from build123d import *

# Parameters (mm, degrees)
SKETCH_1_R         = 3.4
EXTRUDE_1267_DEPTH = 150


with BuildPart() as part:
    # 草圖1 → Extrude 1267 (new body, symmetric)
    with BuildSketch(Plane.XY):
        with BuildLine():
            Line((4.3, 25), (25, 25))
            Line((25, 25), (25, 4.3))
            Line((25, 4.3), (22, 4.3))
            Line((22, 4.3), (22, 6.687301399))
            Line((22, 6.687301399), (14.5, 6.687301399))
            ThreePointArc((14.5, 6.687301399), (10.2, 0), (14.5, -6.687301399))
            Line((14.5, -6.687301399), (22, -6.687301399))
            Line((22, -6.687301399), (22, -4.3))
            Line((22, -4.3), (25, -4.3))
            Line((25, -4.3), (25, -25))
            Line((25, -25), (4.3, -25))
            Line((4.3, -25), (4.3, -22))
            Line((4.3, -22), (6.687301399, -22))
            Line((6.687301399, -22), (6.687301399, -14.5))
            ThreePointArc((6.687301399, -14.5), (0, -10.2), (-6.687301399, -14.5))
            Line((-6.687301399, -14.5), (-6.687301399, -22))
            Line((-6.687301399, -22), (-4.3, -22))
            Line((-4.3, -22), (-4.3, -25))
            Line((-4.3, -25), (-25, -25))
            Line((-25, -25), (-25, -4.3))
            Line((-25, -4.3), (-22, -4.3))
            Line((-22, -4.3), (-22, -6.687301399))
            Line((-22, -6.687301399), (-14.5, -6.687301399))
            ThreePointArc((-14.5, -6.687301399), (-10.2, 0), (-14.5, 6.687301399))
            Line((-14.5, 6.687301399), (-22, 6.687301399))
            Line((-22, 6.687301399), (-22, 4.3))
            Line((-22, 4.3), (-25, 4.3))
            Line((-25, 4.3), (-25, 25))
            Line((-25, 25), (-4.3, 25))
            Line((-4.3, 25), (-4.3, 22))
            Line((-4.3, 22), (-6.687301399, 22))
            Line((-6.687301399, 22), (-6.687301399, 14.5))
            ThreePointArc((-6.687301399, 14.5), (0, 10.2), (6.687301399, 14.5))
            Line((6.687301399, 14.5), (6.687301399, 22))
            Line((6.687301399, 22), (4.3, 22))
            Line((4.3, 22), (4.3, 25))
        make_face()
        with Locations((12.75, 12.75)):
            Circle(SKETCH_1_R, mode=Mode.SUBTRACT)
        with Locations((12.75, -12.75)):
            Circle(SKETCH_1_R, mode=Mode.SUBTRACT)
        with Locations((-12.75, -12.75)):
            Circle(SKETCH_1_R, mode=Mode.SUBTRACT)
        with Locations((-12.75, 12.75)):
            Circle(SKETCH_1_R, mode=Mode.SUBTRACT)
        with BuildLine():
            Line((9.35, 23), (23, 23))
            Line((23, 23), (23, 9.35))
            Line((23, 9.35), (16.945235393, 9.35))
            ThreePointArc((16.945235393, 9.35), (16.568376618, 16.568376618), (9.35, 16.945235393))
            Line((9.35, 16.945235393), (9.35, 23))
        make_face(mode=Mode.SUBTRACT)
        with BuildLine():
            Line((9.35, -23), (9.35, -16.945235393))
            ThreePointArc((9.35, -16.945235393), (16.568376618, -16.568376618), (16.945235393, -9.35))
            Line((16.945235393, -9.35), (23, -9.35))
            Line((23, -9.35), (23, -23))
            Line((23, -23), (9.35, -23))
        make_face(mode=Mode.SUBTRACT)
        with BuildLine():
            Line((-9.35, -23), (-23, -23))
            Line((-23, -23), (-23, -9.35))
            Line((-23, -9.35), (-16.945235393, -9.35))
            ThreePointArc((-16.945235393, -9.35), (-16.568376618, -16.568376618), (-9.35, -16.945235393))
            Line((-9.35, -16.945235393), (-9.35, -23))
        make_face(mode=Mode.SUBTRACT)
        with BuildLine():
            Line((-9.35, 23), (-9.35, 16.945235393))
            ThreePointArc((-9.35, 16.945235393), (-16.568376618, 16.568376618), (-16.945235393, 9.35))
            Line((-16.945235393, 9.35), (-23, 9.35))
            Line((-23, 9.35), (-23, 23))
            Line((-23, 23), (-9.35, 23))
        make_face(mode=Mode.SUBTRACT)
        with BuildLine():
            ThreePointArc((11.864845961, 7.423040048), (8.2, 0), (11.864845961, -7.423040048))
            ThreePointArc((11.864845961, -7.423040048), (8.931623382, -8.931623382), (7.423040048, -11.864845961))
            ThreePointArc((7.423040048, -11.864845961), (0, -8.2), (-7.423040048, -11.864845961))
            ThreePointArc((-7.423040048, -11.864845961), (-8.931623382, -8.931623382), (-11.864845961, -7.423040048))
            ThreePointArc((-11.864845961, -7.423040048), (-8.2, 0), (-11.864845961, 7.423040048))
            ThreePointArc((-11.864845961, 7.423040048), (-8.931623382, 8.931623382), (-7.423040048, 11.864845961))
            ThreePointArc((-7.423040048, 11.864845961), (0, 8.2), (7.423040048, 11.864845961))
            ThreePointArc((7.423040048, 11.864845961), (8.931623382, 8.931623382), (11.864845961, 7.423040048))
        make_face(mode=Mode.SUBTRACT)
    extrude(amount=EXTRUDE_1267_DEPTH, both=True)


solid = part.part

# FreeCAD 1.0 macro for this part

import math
import FreeCAD as App
import Part
import Sketcher

V = App.Vector
Q = App.Units.Quantity

doc = App.newDocument("Part")
body = doc.addObject("PartDesign::Body", "Body")

# Sketch on XY plane
sketch1 = body.newObject("Sketcher::SketchObject", "Sketch")
sketch1.AttachmentSupport = (doc.getObject("XY_Plane"), [""])
sketch1.MapMode = "FlatFace"
sketch1.addGeometry(Part.LineSegment(V(25, 25, 0), V(4.3, 25, 0)), False)
sketch1.addGeometry(Part.LineSegment(V(4.3, 25, 0), V(4.3, 22, 0)), False)
sketch1.addGeometry(Part.LineSegment(V(4.3, 22, 0), V(6.7, 22, 0)), False)
sketch1.addGeometry(Part.LineSegment(V(6.7, 22, 0), V(6.7, 14.5, 0)), False)
sketch1.addGeometry(Part.ArcOfCircle(Part.Circle(V(0, 17.6, 0), V(0, 0, 1), 7.3), math.radians(-155), math.radians(-25)), False)
sketch1.addGeometry(Part.LineSegment(V(-6.7, 14.5, 0), V(-6.7, 22, 0)), False)
sketch1.addGeometry(Part.LineSegment(V(-6.7, 22, 0), V(-4.3, 22, 0)), False)
sketch1.addGeometry(Part.LineSegment(V(-4.3, 22, 0), V(-4.3, 25, 0)), False)
sketch1.addGeometry(Part.LineSegment(V(-4.3, 25, 0), V(-25, 25, 0)), False)
sketch1.addGeometry(Part.LineSegment(V(-25, 25, 0), V(-25, 4.3, 0)), False)
sketch1.addGeometry(Part.LineSegment(V(-25, 4.3, 0), V(-22, 4.3, 0)), False)
sketch1.addGeometry(Part.LineSegment(V(-22, 4.3, 0), V(-22, 6.7, 0)), False)
sketch1.addGeometry(Part.LineSegment(V(-22, 6.7, 0), V(-14.5, 6.7, 0)), False)
sketch1.addGeometry(Part.ArcOfCircle(Part.Circle(V(-17.6, 0, 0), V(0, 0, 1), 7.3), math.radians(-65), math.radians(65)), False)
sketch1.addGeometry(Part.LineSegment(V(-14.5, -6.7, 0), V(-22, -6.7, 0)), False)
sketch1.addGeometry(Part.LineSegment(V(-22, -6.7, 0), V(-22, -4.3, 0)), False)
sketch1.addGeometry(Part.LineSegment(V(-22, -4.3, 0), V(-25, -4.3, 0)), False)
sketch1.addGeometry(Part.LineSegment(V(-25, -4.3, 0), V(-25, -25, 0)), False)
sketch1.addGeometry(Part.LineSegment(V(-25, -25, 0), V(-4.3, -25, 0)), False)
sketch1.addGeometry(Part.LineSegment(V(-4.3, -25, 0), V(-4.3, -22, 0)), False)
sketch1.addGeometry(Part.LineSegment(V(-4.3, -22, 0), V(-6.7, -22, 0)), False)
sketch1.addGeometry(Part.LineSegment(V(-6.7, -22, 0), V(-6.7, -14.5, 0)), False)
sketch1.addGeometry(Part.ArcOfCircle(Part.Circle(V(0, -17.6, 0), V(0, 0, 1), 7.3), math.radians(25), math.radians(155)), False)
sketch1.addGeometry(Part.LineSegment(V(6.7, -14.5, 0), V(6.7, -22, 0)), False)
sketch1.addGeometry(Part.LineSegment(V(6.7, -22, 0), V(4.3, -22, 0)), False)
sketch1.addGeometry(Part.LineSegment(V(4.3, -22, 0), V(4.3, -25, 0)), False)
sketch1.addGeometry(Part.LineSegment(V(4.3, -25, 0), V(25, -25, 0)), False)
sketch1.addGeometry(Part.LineSegment(V(25, -25, 0), V(25, -4.3, 0)), False)
sketch1.addGeometry(Part.LineSegment(V(25, -4.3, 0), V(22, -4.3, 0)), False)
sketch1.addGeometry(Part.LineSegment(V(22, -4.3, 0), V(22, -6.7, 0)), False)
sketch1.addGeometry(Part.LineSegment(V(22, -6.7, 0), V(14.5, -6.7, 0)), False)
sketch1.addGeometry(Part.ArcOfCircle(Part.Circle(V(17.6, 0, 0), V(0, 0, 1), 7.3), math.radians(115), math.radians(245)), False)
sketch1.addGeometry(Part.LineSegment(V(14.5, 6.7, 0), V(22, 6.7, 0)), False)
sketch1.addGeometry(Part.LineSegment(V(22, 6.7, 0), V(22, 4.3, 0)), False)
sketch1.addGeometry(Part.LineSegment(V(22, 4.3, 0), V(25, 4.3, 0)), False)
sketch1.addGeometry(Part.LineSegment(V(25, 4.3, 0), V(25, 25, 0)), False)
sketch1.addGeometry(Part.LineSegment(V(9.3, -23, 0), V(9.3, -16.9, 0)), False)
sketch1.addGeometry(Part.ArcOfCircle(Part.Circle(V(12.7, -12.7, 0), V(0, 0, 1), 5.4), math.radians(-129), math.radians(39)), False)
sketch1.addGeometry(Part.LineSegment(V(16.9, -9.3, 0), V(23, -9.3, 0)), False)
sketch1.addGeometry(Part.LineSegment(V(23, -9.3, 0), V(23, -23, 0)), False)
sketch1.addGeometry(Part.LineSegment(V(23, -23, 0), V(9.3, -23, 0)), False)
sketch1.addGeometry(Part.Circle(V(12.8, -12.8, 0), V(0, 0, 1), 3.4), False)
sketch1.addGeometry(Part.LineSegment(V(-9.3, -23, 0), V(-23, -23, 0)), False)
sketch1.addGeometry(Part.LineSegment(V(-23, -23, 0), V(-23, -9.3, 0)), False)
sketch1.addGeometry(Part.LineSegment(V(-23, -9.3, 0), V(-16.9, -9.3, 0)), False)
sketch1.addGeometry(Part.ArcOfCircle(Part.Circle(V(-12.7, -12.7, 0), V(0, 0, 1), 5.4), math.radians(141), math.radians(309)), False)
sketch1.addGeometry(Part.LineSegment(V(-9.3, -16.9, 0), V(-9.3, -23, 0)), False)
sketch1.addGeometry(Part.Circle(V(-12.8, -12.8, 0), V(0, 0, 1), 3.4), False)
sketch1.addGeometry(Part.Circle(V(12.8, 12.8, 0), V(0, 0, 1), 3.4), False)
sketch1.addGeometry(Part.LineSegment(V(9.3, 23, 0), V(23, 23, 0)), False)
sketch1.addGeometry(Part.LineSegment(V(23, 23, 0), V(23, 9.3, 0)), False)
sketch1.addGeometry(Part.LineSegment(V(23, 9.3, 0), V(16.9, 9.3, 0)), False)
sketch1.addGeometry(Part.ArcOfCircle(Part.Circle(V(12.7, 12.7, 0), V(0, 0, 1), 5.4), math.radians(-39), math.radians(129)), False)
sketch1.addGeometry(Part.LineSegment(V(9.3, 16.9, 0), V(9.3, 23, 0)), False)
sketch1.addGeometry(Part.ArcOfCircle(Part.Circle(V(17.6, 0, 0), V(0, 0, 1), 9.3), math.radians(127), math.radians(233)), False)
sketch1.addGeometry(Part.ArcOfCircle(Part.Circle(V(12.8, -12.8, 0), V(0, 0, 1), 5.4), math.radians(99), math.radians(171)), False)
sketch1.addGeometry(Part.ArcOfCircle(Part.Circle(V(0, -17.6, 0), V(0, 0, 1), 9.3), math.radians(37), math.radians(143)), False)
sketch1.addGeometry(Part.ArcOfCircle(Part.Circle(V(-12.8, -12.8, 0), V(0, 0, 1), 5.4), math.radians(9), math.radians(81)), False)
sketch1.addGeometry(Part.ArcOfCircle(Part.Circle(V(-17.6, 0, 0), V(0, 0, 1), 9.3), math.radians(-53), math.radians(53)), False)
sketch1.addGeometry(Part.ArcOfCircle(Part.Circle(V(-12.8, 12.8, 0), V(0, 0, 1), 5.4), math.radians(-81), math.radians(-9)), False)
sketch1.addGeometry(Part.ArcOfCircle(Part.Circle(V(0, 17.6, 0), V(0, 0, 1), 9.3), math.radians(-143), math.radians(-37)), False)
sketch1.addGeometry(Part.ArcOfCircle(Part.Circle(V(12.8, 12.8, 0), V(0, 0, 1), 5.4), math.radians(-171), math.radians(-99)), False)
sketch1.addGeometry(Part.Circle(V(-12.8, 12.8, 0), V(0, 0, 1), 3.4), False)
sketch1.addGeometry(Part.LineSegment(V(-9.3, 23, 0), V(-9.3, 16.9, 0)), False)
sketch1.addGeometry(Part.ArcOfCircle(Part.Circle(V(-12.7, 12.7, 0), V(0, 0, 1), 5.4), math.radians(51), math.radians(219)), False)
sketch1.addGeometry(Part.LineSegment(V(-16.9, 9.3, 0), V(-23, 9.3, 0)), False)
sketch1.addGeometry(Part.LineSegment(V(-23, 9.3, 0), V(-23, 23, 0)), False)
sketch1.addGeometry(Part.LineSegment(V(-23, 23, 0), V(-9.3, 23, 0)), False)
sketch1.addConstraint(Sketcher.Constraint("Coincident", 0, 2, 1, 1))
sketch1.addConstraint(Sketcher.Constraint("Coincident", 1, 2, 2, 1))
sketch1.addConstraint(Sketcher.Constraint("Coincident", 2, 2, 3, 1))
sketch1.addConstraint(Sketcher.Constraint("Coincident", 3, 2, 4, 2))
sketch1.addConstraint(Sketcher.Constraint("Coincident", 4, 1, 5, 1))
sketch1.addConstraint(Sketcher.Constraint("Coincident", 5, 2, 6, 1))
sketch1.addConstraint(Sketcher.Constraint("Coincident", 6, 2, 7, 1))
sketch1.addConstraint(Sketcher.Constraint("Coincident", 7, 2, 8, 1))
sketch1.addConstraint(Sketcher.Constraint("Coincident", 8, 2, 9, 1))
sketch1.addConstraint(Sketcher.Constraint("Coincident", 9, 2, 10, 1))
sketch1.addConstraint(Sketcher.Constraint("Coincident", 10, 2, 11, 1))
sketch1.addConstraint(Sketcher.Constraint("Coincident", 11, 2, 12, 1))
sketch1.addConstraint(Sketcher.Constraint("Coincident", 12, 2, 13, 2))
sketch1.addConstraint(Sketcher.Constraint("Coincident", 13, 1, 14, 1))
sketch1.addConstraint(Sketcher.Constraint("Coincident", 14, 2, 15, 1))
sketch1.addConstraint(Sketcher.Constraint("Coincident", 15, 2, 16, 1))
sketch1.addConstraint(Sketcher.Constraint("Coincident", 16, 2, 17, 1))
sketch1.addConstraint(Sketcher.Constraint("Coincident", 17, 2, 18, 1))
sketch1.addConstraint(Sketcher.Constraint("Coincident", 18, 2, 19, 1))
sketch1.addConstraint(Sketcher.Constraint("Coincident", 19, 2, 20, 1))
sketch1.addConstraint(Sketcher.Constraint("Coincident", 20, 2, 21, 1))
sketch1.addConstraint(Sketcher.Constraint("Coincident", 21, 2, 22, 2))
sketch1.addConstraint(Sketcher.Constraint("Coincident", 22, 1, 23, 1))
sketch1.addConstraint(Sketcher.Constraint("Coincident", 23, 2, 24, 1))
sketch1.addConstraint(Sketcher.Constraint("Coincident", 24, 2, 25, 1))
sketch1.addConstraint(Sketcher.Constraint("Coincident", 25, 2, 26, 1))
sketch1.addConstraint(Sketcher.Constraint("Coincident", 26, 2, 27, 1))
sketch1.addConstraint(Sketcher.Constraint("Coincident", 27, 2, 28, 1))
sketch1.addConstraint(Sketcher.Constraint("Coincident", 28, 2, 29, 1))
sketch1.addConstraint(Sketcher.Constraint("Coincident", 29, 2, 30, 1))
sketch1.addConstraint(Sketcher.Constraint("Coincident", 30, 2, 31, 2))
sketch1.addConstraint(Sketcher.Constraint("Coincident", 31, 1, 32, 1))
sketch1.addConstraint(Sketcher.Constraint("Coincident", 32, 2, 33, 1))
sketch1.addConstraint(Sketcher.Constraint("Coincident", 33, 2, 34, 1))
sketch1.addConstraint(Sketcher.Constraint("Coincident", 34, 2, 35, 1))
sketch1.addConstraint(Sketcher.Constraint("Coincident", 35, 2, 0, 1))
sketch1.addConstraint(Sketcher.Constraint("Coincident", 36, 2, 37, 1))
sketch1.addConstraint(Sketcher.Constraint("Coincident", 37, 2, 38, 1))
sketch1.addConstraint(Sketcher.Constraint("Coincident", 38, 2, 39, 1))
sketch1.addConstraint(Sketcher.Constraint("Coincident", 39, 2, 40, 1))
sketch1.addConstraint(Sketcher.Constraint("Coincident", 40, 2, 36, 1))
sketch1.addConstraint(Sketcher.Constraint("Coincident", 42, 2, 43, 1))
sketch1.addConstraint(Sketcher.Constraint("Coincident", 43, 2, 44, 1))
sketch1.addConstraint(Sketcher.Constraint("Coincident", 44, 2, 45, 1))
sketch1.addConstraint(Sketcher.Constraint("Coincident", 45, 2, 46, 1))
sketch1.addConstraint(Sketcher.Constraint("Coincident", 46, 2, 42, 1))
sketch1.addConstraint(Sketcher.Constraint("Coincident", 49, 2, 50, 1))
sketch1.addConstraint(Sketcher.Constraint("Coincident", 50, 2, 51, 1))
sketch1.addConstraint(Sketcher.Constraint("Coincident", 51, 2, 52, 1))
sketch1.addConstraint(Sketcher.Constraint("Coincident", 52, 2, 53, 1))
sketch1.addConstraint(Sketcher.Constraint("Coincident", 53, 2, 49, 1))
sketch1.addConstraint(Sketcher.Constraint("Coincident", 54, 2, 55, 1))
sketch1.addConstraint(Sketcher.Constraint("Coincident", 55, 2, 56, 1))
sketch1.addConstraint(Sketcher.Constraint("Coincident", 56, 2, 57, 1))
sketch1.addConstraint(Sketcher.Constraint("Coincident", 57, 2, 58, 1))
sketch1.addConstraint(Sketcher.Constraint("Coincident", 58, 2, 59, 1))
sketch1.addConstraint(Sketcher.Constraint("Coincident", 59, 2, 60, 1))
sketch1.addConstraint(Sketcher.Constraint("Coincident", 60, 2, 61, 1))
sketch1.addConstraint(Sketcher.Constraint("Coincident", 61, 2, 54, 1))
sketch1.addConstraint(Sketcher.Constraint("Coincident", 63, 2, 64, 1))
sketch1.addConstraint(Sketcher.Constraint("Coincident", 64, 2, 65, 1))
sketch1.addConstraint(Sketcher.Constraint("Coincident", 65, 2, 66, 1))
sketch1.addConstraint(Sketcher.Constraint("Coincident", 66, 2, 67, 1))
sketch1.addConstraint(Sketcher.Constraint("Coincident", 67, 2, 63, 1))
sketch1.addConstraint(Sketcher.Constraint("Horizontal", 0))
sketch1.addConstraint(Sketcher.Constraint("Vertical", 1))
sketch1.addConstraint(Sketcher.Constraint("Horizontal", 2))
sketch1.addConstraint(Sketcher.Constraint("Vertical", 3))
sketch1.addConstraint(Sketcher.Constraint("Vertical", 5))
sketch1.addConstraint(Sketcher.Constraint("Horizontal", 6))
sketch1.addConstraint(Sketcher.Constraint("Vertical", 7))
sketch1.addConstraint(Sketcher.Constraint("Horizontal", 8))
sketch1.addConstraint(Sketcher.Constraint("Vertical", 9))
sketch1.addConstraint(Sketcher.Constraint("Horizontal", 10))
sketch1.addConstraint(Sketcher.Constraint("Vertical", 11))
sketch1.addConstraint(Sketcher.Constraint("Horizontal", 12))
sketch1.addConstraint(Sketcher.Constraint("Horizontal", 14))
sketch1.addConstraint(Sketcher.Constraint("Vertical", 15))
sketch1.addConstraint(Sketcher.Constraint("Horizontal", 16))
sketch1.addConstraint(Sketcher.Constraint("Vertical", 17))
sketch1.addConstraint(Sketcher.Constraint("Horizontal", 18))
sketch1.addConstraint(Sketcher.Constraint("Vertical", 19))
sketch1.addConstraint(Sketcher.Constraint("Horizontal", 20))
sketch1.addConstraint(Sketcher.Constraint("Vertical", 21))
sketch1.addConstraint(Sketcher.Constraint("Vertical", 23))
sketch1.addConstraint(Sketcher.Constraint("Horizontal", 24))
sketch1.addConstraint(Sketcher.Constraint("Vertical", 25))
sketch1.addConstraint(Sketcher.Constraint("Horizontal", 26))
sketch1.addConstraint(Sketcher.Constraint("Vertical", 27))
sketch1.addConstraint(Sketcher.Constraint("Horizontal", 28))
sketch1.addConstraint(Sketcher.Constraint("Vertical", 29))
sketch1.addConstraint(Sketcher.Constraint("Horizontal", 30))
sketch1.addConstraint(Sketcher.Constraint("Horizontal", 32))
sketch1.addConstraint(Sketcher.Constraint("Vertical", 33))
sketch1.addConstraint(Sketcher.Constraint("Horizontal", 34))
sketch1.addConstraint(Sketcher.Constraint("Vertical", 35))
sketch1.addConstraint(Sketcher.Constraint("Vertical", 36))
sketch1.addConstraint(Sketcher.Constraint("Horizontal", 38))
sketch1.addConstraint(Sketcher.Constraint("Vertical", 39))
sketch1.addConstraint(Sketcher.Constraint("Horizontal", 40))
sketch1.addConstraint(Sketcher.Constraint("Horizontal", 42))
sketch1.addConstraint(Sketcher.Constraint("Vertical", 43))
sketch1.addConstraint(Sketcher.Constraint("Horizontal", 44))
sketch1.addConstraint(Sketcher.Constraint("Vertical", 46))
sketch1.addConstraint(Sketcher.Constraint("Horizontal", 49))
sketch1.addConstraint(Sketcher.Constraint("Vertical", 50))
sketch1.addConstraint(Sketcher.Constraint("Horizontal", 51))
sketch1.addConstraint(Sketcher.Constraint("Vertical", 53))
sketch1.addConstraint(Sketcher.Constraint("Vertical", 63))
sketch1.addConstraint(Sketcher.Constraint("Horizontal", 65))
sketch1.addConstraint(Sketcher.Constraint("Vertical", 66))
sketch1.addConstraint(Sketcher.Constraint("Horizontal", 67))
sketch1.addConstraint(Sketcher.Constraint("Coincident", 41, 3, 37, 3))
sketch1.addConstraint(Sketcher.Constraint("Coincident", 47, 3, 45, 3))
sketch1.addConstraint(Sketcher.Constraint("Coincident", 52, 3, 48, 3))
sketch1.addConstraint(Sketcher.Constraint("Coincident", 54, 3, 31, 3))
sketch1.addConstraint(Sketcher.Constraint("Coincident", 55, 3, 37, 3))
sketch1.addConstraint(Sketcher.Constraint("Coincident", 56, 3, 22, 3))
sketch1.addConstraint(Sketcher.Constraint("Coincident", 57, 3, 45, 3))
sketch1.addConstraint(Sketcher.Constraint("Coincident", 58, 3, 13, 3))
sketch1.addConstraint(Sketcher.Constraint("Coincident", 60, 3, 4, 3))
sketch1.addConstraint(Sketcher.Constraint("Coincident", 61, 3, 48, 3))
sketch1.addConstraint(Sketcher.Constraint("Coincident", 62, 3, 59, 3))
sketch1.addConstraint(Sketcher.Constraint("Coincident", 64, 3, 59, 3))
sketch1.addConstraint(Sketcher.Constraint("Equal", 4, 13))
sketch1.addConstraint(Sketcher.Constraint("Equal", 13, 22))
sketch1.addConstraint(Sketcher.Constraint("Equal", 22, 31))
sketch1.addConstraint(Sketcher.Constraint("Equal", 37, 45))
sketch1.addConstraint(Sketcher.Constraint("Equal", 41, 47))
sketch1.addConstraint(Sketcher.Constraint("Equal", 47, 48))
sketch1.addConstraint(Sketcher.Constraint("Equal", 45, 52))
sketch1.addConstraint(Sketcher.Constraint("Equal", 52, 55))
sketch1.addConstraint(Sketcher.Constraint("Equal", 54, 56))
sketch1.addConstraint(Sketcher.Constraint("Equal", 55, 57))
sketch1.addConstraint(Sketcher.Constraint("Equal", 56, 58))
sketch1.addConstraint(Sketcher.Constraint("Equal", 57, 59))
sketch1.addConstraint(Sketcher.Constraint("Equal", 58, 60))
sketch1.addConstraint(Sketcher.Constraint("Equal", 59, 61))
sketch1.addConstraint(Sketcher.Constraint("Equal", 48, 62))
sketch1.addConstraint(Sketcher.Constraint("Equal", 61, 64))
sketch1.addConstraint(Sketcher.Constraint("Symmetric", 4, 3, 22, 3, -1, 1))
sketch1.addConstraint(Sketcher.Constraint("Symmetric", 13, 3, 31, 3, -1, 1))
sketch1.addConstraint(Sketcher.Constraint("Symmetric", 45, 3, 48, 3, -1, 1))
sketch1.addConstraint(Sketcher.Constraint("Symmetric", 37, 3, 59, 3, -1, 1))
sketch1.addConstraint(Sketcher.Constraint("Symmetric", 0, 2, 18, 2, -1, 1))
sketch1.addConstraint(Sketcher.Constraint("Symmetric", 2, 2, 20, 2, -1, 1))
sketch1.addConstraint(Sketcher.Constraint("Symmetric", 5, 2, 23, 2, -1, 1))
sketch1.addConstraint(Sketcher.Constraint("Symmetric", 7, 2, 25, 2, -1, 1))
sketch1.addConstraint(Sketcher.Constraint("Symmetric", 9, 2, 27, 2, -1, 1))
sketch1.addConstraint(Sketcher.Constraint("Symmetric", 11, 2, 29, 2, -1, 1))
sketch1.addConstraint(Sketcher.Constraint("Symmetric", 14, 2, 32, 2, -1, 1))
sketch1.addConstraint(Sketcher.Constraint("Symmetric", 16, 2, 34, 2, -1, 1))
sketch1.addConstraint(Sketcher.Constraint("Symmetric", 42, 2, 49, 2, -1, 1))
sketch1.addConstraint(Sketcher.Constraint("Symmetric", 38, 2, 65, 2, -1, 1))
sketch1.addConstraint(Sketcher.Constraint("Symmetric", 40, 2, 67, 2, -1, 1))
sketch1.addConstraint(Sketcher.Constraint("Symmetric", 37, 3, 45, 3, -2))
sketch1.addConstraint(Sketcher.Constraint("Symmetric", 3, 2, 4, 1, -2))
sketch1.addConstraint(Sketcher.Constraint("Symmetric", 1, 2, 6, 2, -2))
sketch1.addConstraint(Sketcher.Constraint("Symmetric", 17, 2, 26, 2, -2))
sketch1.addConstraint(Sketcher.Constraint("Symmetric", 15, 2, 28, 2, -2))
sketch1.addConstraint(Sketcher.Constraint("Symmetric", 13, 1, 30, 2, -2))
sketch1.addConstraint(Sketcher.Constraint("Symmetric", 39, 2, 42, 2, -2))
sketch1.addConstraint(Sketcher.Constraint("Horizontal", 38, 2, 43, 2))
sketch1.addConstraint(Sketcher.Constraint("Horizontal", 36, 2, 45, 2))
sketch1.addConstraint(Sketcher.Constraint("Horizontal", 52, 2, 63, 2))
sketch1.addConstraint(Sketcher.Constraint("Horizontal", 51, 2, 64, 2))
sketch1.addConstraint(Sketcher.Constraint("Equal", 34, 1))
sketch1.addConstraint(Sketcher.Constraint("Equal", 32, 3))
sketch1.addConstraint(Sketcher.Constraint("Equal", 26, 9))
sketch1.addConstraint(Sketcher.Constraint("Equal", 24, 11))
sketch1.addConstraint(Sketcher.Constraint("Equal", 65, 36))
sketch1.addConstraint(Sketcher.Constraint("Equal", 67, 39))
sketch1.addConstraint(Sketcher.Constraint("Diameter", 41, Q("6.8 mm")))
sketch1.addConstraint(Sketcher.Constraint("Radius", 37, Q("5.4 mm")))
sketch1.addConstraint(Sketcher.Constraint("DistanceX", 10, 1, 10, 2, Q("3 mm")))
sketch1.addConstraint(Sketcher.Constraint("Radius", 4, Q("7.35 mm")))
sketch1.addConstraint(Sketcher.Constraint("Radius", 54, Q("9.35 mm")))
sketch1.addConstraint(Sketcher.Constraint("DistanceX", 0, 2, 0, 1, Q("20.7 mm")))
sketch1.addConstraint(Sketcher.Constraint("DistanceX", 12, 1, 12, 2, Q("7.5 mm")))
sketch1.addConstraint(Sketcher.Constraint("DistanceY", -1, 1, 0, 2, Q("25 mm")))
sketch1.addConstraint(Sketcher.Constraint("DistanceX", 8, 2, -1, 1, Q("25 mm")))
sketch1.addConstraint(Sketcher.Constraint("DistanceX", -1, 1, 38, 2, Q("23 mm")))
sketch1.addConstraint(Sketcher.Constraint("DistanceY", 39, 2, -1, 1, Q("23 mm")))
sketch1.addConstraint(Sketcher.Constraint("DistanceX", 40, 2, 40, 1, Q("13.65 mm")))
sketch1.addConstraint(Sketcher.Constraint("DistanceY", -1, 1, 4, 3, Q("17.55 mm")))
sketch1.addConstraint(Sketcher.Constraint("DistanceX", -1, 1, 37, 3, Q("12.75 mm")))
pad1 = body.newObject("PartDesign::Pad", "Pad")
pad1.Profile = sketch1
pad1.Length = 300
pad1.Midplane = True

doc.recompute()
